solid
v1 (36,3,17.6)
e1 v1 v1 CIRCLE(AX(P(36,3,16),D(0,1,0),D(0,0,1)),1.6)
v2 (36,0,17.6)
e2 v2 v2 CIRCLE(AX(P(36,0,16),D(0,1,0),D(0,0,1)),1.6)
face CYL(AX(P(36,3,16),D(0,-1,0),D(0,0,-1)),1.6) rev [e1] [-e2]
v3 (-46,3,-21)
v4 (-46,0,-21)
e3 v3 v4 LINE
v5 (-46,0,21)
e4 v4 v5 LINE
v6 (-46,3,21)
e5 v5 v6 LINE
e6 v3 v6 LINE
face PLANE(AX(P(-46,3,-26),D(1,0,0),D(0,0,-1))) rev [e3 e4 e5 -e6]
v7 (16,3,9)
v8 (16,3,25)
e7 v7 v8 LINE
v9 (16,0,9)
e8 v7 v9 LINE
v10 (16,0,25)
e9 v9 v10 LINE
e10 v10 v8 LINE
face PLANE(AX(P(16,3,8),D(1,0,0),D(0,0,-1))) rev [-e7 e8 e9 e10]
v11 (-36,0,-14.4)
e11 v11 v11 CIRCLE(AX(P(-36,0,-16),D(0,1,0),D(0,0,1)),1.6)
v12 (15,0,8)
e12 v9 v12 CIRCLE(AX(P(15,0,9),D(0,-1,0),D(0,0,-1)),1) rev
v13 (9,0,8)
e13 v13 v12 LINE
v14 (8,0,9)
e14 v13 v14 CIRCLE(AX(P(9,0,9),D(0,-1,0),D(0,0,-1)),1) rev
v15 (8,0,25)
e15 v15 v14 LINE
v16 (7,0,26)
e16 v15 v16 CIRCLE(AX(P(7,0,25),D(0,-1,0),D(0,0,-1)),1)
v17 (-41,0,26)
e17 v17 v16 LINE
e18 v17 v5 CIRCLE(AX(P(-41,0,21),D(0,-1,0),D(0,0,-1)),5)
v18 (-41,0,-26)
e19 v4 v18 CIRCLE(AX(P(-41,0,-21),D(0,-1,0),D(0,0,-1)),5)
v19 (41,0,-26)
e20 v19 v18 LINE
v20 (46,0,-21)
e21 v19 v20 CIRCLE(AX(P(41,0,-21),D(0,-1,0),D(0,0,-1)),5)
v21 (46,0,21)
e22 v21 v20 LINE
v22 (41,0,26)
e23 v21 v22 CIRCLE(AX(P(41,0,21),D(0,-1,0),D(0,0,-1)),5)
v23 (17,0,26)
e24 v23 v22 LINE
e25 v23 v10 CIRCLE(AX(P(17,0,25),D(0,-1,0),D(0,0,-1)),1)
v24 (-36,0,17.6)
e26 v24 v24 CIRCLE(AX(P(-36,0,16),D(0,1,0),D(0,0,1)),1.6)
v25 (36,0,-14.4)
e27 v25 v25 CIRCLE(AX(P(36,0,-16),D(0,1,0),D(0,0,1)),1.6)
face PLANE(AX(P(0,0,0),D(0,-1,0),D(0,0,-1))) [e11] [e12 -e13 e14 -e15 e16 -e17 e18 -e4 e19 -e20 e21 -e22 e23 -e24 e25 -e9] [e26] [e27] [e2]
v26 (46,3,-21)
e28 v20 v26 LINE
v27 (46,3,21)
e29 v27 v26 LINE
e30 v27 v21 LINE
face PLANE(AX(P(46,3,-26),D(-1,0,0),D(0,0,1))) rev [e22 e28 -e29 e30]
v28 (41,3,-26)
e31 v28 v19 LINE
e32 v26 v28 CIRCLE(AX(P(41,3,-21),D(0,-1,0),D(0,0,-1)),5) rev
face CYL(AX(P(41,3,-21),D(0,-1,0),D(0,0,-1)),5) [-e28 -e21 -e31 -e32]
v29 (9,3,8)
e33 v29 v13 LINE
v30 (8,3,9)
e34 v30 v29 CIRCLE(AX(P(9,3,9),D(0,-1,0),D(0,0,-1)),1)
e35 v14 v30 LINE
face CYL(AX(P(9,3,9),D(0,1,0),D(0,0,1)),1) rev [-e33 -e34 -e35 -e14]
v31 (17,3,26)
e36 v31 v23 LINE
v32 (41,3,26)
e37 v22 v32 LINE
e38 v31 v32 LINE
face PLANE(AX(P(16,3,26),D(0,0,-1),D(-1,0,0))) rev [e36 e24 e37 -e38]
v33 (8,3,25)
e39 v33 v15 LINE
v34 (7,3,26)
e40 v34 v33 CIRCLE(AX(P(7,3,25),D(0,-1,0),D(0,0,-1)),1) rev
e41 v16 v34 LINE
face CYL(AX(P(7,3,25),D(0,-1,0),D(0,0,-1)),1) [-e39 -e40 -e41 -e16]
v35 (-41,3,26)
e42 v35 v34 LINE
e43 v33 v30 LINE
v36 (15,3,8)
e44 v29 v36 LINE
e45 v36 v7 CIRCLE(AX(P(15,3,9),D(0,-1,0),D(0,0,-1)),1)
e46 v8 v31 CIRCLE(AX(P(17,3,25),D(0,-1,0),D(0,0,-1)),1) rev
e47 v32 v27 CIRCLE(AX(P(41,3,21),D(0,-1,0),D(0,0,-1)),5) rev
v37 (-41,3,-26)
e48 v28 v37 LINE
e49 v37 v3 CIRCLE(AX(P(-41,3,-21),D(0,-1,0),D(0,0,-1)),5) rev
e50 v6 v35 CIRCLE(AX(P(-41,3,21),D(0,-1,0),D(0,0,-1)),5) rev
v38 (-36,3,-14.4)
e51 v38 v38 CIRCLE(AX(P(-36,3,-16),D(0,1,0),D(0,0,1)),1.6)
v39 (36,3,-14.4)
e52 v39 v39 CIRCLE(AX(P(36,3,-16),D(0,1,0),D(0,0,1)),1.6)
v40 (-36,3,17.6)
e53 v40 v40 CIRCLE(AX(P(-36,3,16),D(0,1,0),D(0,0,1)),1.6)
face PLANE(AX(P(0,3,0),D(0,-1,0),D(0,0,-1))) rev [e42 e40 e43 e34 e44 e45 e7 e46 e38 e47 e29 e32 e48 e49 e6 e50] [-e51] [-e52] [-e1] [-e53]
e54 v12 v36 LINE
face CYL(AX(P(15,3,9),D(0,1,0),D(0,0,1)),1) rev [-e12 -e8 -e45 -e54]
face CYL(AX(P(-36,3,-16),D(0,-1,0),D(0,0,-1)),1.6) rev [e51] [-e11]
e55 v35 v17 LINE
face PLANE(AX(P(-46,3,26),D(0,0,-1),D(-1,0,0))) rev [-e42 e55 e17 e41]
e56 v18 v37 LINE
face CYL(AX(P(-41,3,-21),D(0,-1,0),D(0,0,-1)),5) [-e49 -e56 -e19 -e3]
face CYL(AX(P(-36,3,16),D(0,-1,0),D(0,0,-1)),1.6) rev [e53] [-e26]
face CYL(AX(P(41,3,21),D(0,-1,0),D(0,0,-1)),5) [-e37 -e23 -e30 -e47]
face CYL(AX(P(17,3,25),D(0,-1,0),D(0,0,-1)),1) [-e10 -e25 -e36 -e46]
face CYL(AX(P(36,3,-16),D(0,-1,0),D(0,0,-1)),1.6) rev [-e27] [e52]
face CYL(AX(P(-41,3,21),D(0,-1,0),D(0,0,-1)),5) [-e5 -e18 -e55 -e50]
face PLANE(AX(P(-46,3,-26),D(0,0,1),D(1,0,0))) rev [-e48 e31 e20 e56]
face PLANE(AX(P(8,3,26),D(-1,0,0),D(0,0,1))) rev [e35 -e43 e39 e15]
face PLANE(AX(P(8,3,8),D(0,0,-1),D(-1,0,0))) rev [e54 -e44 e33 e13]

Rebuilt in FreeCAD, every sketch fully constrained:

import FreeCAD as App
import Part
import Sketcher


def edges_at(feature, points):
    """Names of the edges that pass closest to the given points."""
    edges = feature.Shape.Edges
    near = lambda p: min(range(len(edges)), key=lambda i: edges[i].distToShape(Part.Vertex(*p))[0])
    return sorted({f"Edge{near(p) + 1}" for p in points})

doc = App.newDocument("Part")
params = doc.addObject("Spreadsheet::Sheet", "Params")
for row, (alias, value) in enumerate([
    ("sketch1_diameter", "3.2 mm"),
    ("sketch1_width", "8 mm"),
    ("sketch1_width2", "30 mm"),
    ("sketch1_width3", "92 mm"),
    ("sketch1_height", "18 mm"),
    ("pad1_length", "3 mm"),
    ("fillet_radius", "5 mm"),
    ("fillet2_radius", "1 mm"),
], start=1):
    params.set(f"A{row}", alias)
    params.set(f"B{row}", "=" + value)
    params.setAlias(f"B{row}", alias)

body = doc.addObject("PartDesign::Body", "Body")

sketch1 = body.newObject("Sketcher::SketchObject", "Sketch")
sketch1.AttachmentSupport = (doc.getObject("XZ_Plane"), [""])
sketch1.MapMode = "FlatFace"
sketch1.addGeometry(Part.LineSegment(App.Vector(8, 26, 0), App.Vector(8, 8, 0)), False)
sketch1.addGeometry(Part.LineSegment(App.Vector(8, 8, 0), App.Vector(16, 8, 0)), False)
sketch1.addGeometry(Part.LineSegment(App.Vector(16, 8, 0), App.Vector(16, 26, 0)), False)
sketch1.addGeometry(Part.LineSegment(App.Vector(16, 26, 0), App.Vector(46, 26, 0)), False)
sketch1.addGeometry(Part.LineSegment(App.Vector(46, 26, 0), App.Vector(46, -26, 0)), False)
sketch1.addGeometry(Part.LineSegment(App.Vector(46, -26, 0), App.Vector(-46, -26, 0)), False)
sketch1.addGeometry(Part.LineSegment(App.Vector(-46, -26, 0), App.Vector(-46, 26, 0)), False)
sketch1.addGeometry(Part.LineSegment(App.Vector(-46, 26, 0), App.Vector(8, 26, 0)), False)
sketch1.addGeometry(Part.Circle(App.Vector(-36, 16, 0), App.Vector(0, 0, 1), 1.6), False)
sketch1.addGeometry(Part.Circle(App.Vector(36, 16, 0), App.Vector(0, 0, 1), 1.6), False)
sketch1.addGeometry(Part.Circle(App.Vector(-36, -16, 0), App.Vector(0, 0, 1), 1.6), False)
sketch1.addGeometry(Part.Circle(App.Vector(36, -16, 0), App.Vector(0, 0, 1), 1.6), False)
sketch1.addConstraint(Sketcher.Constraint("Coincident", 0, 2, 1, 1))
sketch1.addConstraint(Sketcher.Constraint("Coincident", 1, 2, 2, 1))
sketch1.addConstraint(Sketcher.Constraint("Coincident", 2, 2, 3, 1))
sketch1.addConstraint(Sketcher.Constraint("Coincident", 3, 2, 4, 1))
sketch1.addConstraint(Sketcher.Constraint("Coincident", 4, 2, 5, 1))
sketch1.addConstraint(Sketcher.Constraint("Coincident", 5, 2, 6, 1))
sketch1.addConstraint(Sketcher.Constraint("Coincident", 6, 2, 7, 1))
sketch1.addConstraint(Sketcher.Constraint("Coincident", 7, 2, 0, 1))
sketch1.addConstraint(Sketcher.Constraint("Vertical", 0))
sketch1.addConstraint(Sketcher.Constraint("Horizontal", 1))
sketch1.addConstraint(Sketcher.Constraint("Vertical", 2))
sketch1.addConstraint(Sketcher.Constraint("Horizontal", 3))
sketch1.addConstraint(Sketcher.Constraint("Vertical", 4))
sketch1.addConstraint(Sketcher.Constraint("Horizontal", 5))
sketch1.addConstraint(Sketcher.Constraint("Vertical", 6))
sketch1.addConstraint(Sketcher.Constraint("Horizontal", 7))
sketch1.addConstraint(Sketcher.Constraint("Equal", 8, 9))
sketch1.addConstraint(Sketcher.Constraint("Equal", 9, 10))
sketch1.addConstraint(Sketcher.Constraint("Equal", 10, 11))
sketch1.addConstraint(Sketcher.Constraint("Symmetric", 9, 3, 10, 3, -1, 1))
sketch1.addConstraint(Sketcher.Constraint("Symmetric", 8, 3, 11, 3, -1, 1))
sketch1.addConstraint(Sketcher.Constraint("Symmetric", 3, 2, 5, 2, -1, 1))
sketch1.addConstraint(Sketcher.Constraint("Symmetric", 8, 3, 9, 3, -2))
sketch1.addConstraint(Sketcher.Constraint("Horizontal", 3, 2, 6, 2))
sketch1.addConstraint(Sketcher.Constraint("Diameter", 8, 3.2))
sketch1.addConstraint(Sketcher.Constraint("DistanceX", 1, 1, 1, 2, 8.0))
sketch1.addConstraint(Sketcher.Constraint("DistanceX", 3, 1, 3, 2, 30.0))
sketch1.addConstraint(Sketcher.Constraint("DistanceX", 5, 2, 5, 1, 92.0))
sketch1.addConstraint(Sketcher.Constraint("DistanceY", 0, 2, 0, 1, 18.0))
sketch1.addConstraint(Sketcher.Constraint("DistanceY", 4, 2, 4, 1, 52.0))
sketch1.addConstraint(Sketcher.Constraint("DistanceX", 8, 3, -1, 1, 36.0))
sketch1.addConstraint(Sketcher.Constraint("DistanceY", -1, 1, 8, 3, 16.0))
sketch1.setExpression("Constraints[24]", "Params.sketch1_diameter")
sketch1.setExpression("Constraints[25]", "Params.sketch1_width")
sketch1.setExpression("Constraints[26]", "Params.sketch1_width2")
sketch1.setExpression("Constraints[27]", "Params.sketch1_width3")
sketch1.setExpression("Constraints[28]", "Params.sketch1_height")
pad1 = body.newObject("PartDesign::Pad", "Pad")
pad1.Profile = sketch1
pad1.setExpression("Length", "Params.pad1_length")
pad1.Reversed = True
doc.recompute()

fillet = body.newObject("PartDesign::Fillet", "Fillet")
fillet.Base = (pad1, edges_at(pad1, [
    (-46, 1.5, 26),
    (-46, 1.5, -26),
    (46, 1.5, -26),
    (46, 1.5, 26),
]))
fillet.setExpression("Radius", "Params.fillet_radius")
doc.recompute()

fillet2 = body.newObject("PartDesign::Fillet", "Fillet001")
fillet2.Base = (fillet, edges_at(fillet, [
    (16, 1.5, 26),
    (16, 1.5, 8),
    (8, 1.5, 8),
    (8, 1.5, 26),
]))
fillet2.setExpression("Radius", "Params.fillet2_radius")

doc.recompute()
